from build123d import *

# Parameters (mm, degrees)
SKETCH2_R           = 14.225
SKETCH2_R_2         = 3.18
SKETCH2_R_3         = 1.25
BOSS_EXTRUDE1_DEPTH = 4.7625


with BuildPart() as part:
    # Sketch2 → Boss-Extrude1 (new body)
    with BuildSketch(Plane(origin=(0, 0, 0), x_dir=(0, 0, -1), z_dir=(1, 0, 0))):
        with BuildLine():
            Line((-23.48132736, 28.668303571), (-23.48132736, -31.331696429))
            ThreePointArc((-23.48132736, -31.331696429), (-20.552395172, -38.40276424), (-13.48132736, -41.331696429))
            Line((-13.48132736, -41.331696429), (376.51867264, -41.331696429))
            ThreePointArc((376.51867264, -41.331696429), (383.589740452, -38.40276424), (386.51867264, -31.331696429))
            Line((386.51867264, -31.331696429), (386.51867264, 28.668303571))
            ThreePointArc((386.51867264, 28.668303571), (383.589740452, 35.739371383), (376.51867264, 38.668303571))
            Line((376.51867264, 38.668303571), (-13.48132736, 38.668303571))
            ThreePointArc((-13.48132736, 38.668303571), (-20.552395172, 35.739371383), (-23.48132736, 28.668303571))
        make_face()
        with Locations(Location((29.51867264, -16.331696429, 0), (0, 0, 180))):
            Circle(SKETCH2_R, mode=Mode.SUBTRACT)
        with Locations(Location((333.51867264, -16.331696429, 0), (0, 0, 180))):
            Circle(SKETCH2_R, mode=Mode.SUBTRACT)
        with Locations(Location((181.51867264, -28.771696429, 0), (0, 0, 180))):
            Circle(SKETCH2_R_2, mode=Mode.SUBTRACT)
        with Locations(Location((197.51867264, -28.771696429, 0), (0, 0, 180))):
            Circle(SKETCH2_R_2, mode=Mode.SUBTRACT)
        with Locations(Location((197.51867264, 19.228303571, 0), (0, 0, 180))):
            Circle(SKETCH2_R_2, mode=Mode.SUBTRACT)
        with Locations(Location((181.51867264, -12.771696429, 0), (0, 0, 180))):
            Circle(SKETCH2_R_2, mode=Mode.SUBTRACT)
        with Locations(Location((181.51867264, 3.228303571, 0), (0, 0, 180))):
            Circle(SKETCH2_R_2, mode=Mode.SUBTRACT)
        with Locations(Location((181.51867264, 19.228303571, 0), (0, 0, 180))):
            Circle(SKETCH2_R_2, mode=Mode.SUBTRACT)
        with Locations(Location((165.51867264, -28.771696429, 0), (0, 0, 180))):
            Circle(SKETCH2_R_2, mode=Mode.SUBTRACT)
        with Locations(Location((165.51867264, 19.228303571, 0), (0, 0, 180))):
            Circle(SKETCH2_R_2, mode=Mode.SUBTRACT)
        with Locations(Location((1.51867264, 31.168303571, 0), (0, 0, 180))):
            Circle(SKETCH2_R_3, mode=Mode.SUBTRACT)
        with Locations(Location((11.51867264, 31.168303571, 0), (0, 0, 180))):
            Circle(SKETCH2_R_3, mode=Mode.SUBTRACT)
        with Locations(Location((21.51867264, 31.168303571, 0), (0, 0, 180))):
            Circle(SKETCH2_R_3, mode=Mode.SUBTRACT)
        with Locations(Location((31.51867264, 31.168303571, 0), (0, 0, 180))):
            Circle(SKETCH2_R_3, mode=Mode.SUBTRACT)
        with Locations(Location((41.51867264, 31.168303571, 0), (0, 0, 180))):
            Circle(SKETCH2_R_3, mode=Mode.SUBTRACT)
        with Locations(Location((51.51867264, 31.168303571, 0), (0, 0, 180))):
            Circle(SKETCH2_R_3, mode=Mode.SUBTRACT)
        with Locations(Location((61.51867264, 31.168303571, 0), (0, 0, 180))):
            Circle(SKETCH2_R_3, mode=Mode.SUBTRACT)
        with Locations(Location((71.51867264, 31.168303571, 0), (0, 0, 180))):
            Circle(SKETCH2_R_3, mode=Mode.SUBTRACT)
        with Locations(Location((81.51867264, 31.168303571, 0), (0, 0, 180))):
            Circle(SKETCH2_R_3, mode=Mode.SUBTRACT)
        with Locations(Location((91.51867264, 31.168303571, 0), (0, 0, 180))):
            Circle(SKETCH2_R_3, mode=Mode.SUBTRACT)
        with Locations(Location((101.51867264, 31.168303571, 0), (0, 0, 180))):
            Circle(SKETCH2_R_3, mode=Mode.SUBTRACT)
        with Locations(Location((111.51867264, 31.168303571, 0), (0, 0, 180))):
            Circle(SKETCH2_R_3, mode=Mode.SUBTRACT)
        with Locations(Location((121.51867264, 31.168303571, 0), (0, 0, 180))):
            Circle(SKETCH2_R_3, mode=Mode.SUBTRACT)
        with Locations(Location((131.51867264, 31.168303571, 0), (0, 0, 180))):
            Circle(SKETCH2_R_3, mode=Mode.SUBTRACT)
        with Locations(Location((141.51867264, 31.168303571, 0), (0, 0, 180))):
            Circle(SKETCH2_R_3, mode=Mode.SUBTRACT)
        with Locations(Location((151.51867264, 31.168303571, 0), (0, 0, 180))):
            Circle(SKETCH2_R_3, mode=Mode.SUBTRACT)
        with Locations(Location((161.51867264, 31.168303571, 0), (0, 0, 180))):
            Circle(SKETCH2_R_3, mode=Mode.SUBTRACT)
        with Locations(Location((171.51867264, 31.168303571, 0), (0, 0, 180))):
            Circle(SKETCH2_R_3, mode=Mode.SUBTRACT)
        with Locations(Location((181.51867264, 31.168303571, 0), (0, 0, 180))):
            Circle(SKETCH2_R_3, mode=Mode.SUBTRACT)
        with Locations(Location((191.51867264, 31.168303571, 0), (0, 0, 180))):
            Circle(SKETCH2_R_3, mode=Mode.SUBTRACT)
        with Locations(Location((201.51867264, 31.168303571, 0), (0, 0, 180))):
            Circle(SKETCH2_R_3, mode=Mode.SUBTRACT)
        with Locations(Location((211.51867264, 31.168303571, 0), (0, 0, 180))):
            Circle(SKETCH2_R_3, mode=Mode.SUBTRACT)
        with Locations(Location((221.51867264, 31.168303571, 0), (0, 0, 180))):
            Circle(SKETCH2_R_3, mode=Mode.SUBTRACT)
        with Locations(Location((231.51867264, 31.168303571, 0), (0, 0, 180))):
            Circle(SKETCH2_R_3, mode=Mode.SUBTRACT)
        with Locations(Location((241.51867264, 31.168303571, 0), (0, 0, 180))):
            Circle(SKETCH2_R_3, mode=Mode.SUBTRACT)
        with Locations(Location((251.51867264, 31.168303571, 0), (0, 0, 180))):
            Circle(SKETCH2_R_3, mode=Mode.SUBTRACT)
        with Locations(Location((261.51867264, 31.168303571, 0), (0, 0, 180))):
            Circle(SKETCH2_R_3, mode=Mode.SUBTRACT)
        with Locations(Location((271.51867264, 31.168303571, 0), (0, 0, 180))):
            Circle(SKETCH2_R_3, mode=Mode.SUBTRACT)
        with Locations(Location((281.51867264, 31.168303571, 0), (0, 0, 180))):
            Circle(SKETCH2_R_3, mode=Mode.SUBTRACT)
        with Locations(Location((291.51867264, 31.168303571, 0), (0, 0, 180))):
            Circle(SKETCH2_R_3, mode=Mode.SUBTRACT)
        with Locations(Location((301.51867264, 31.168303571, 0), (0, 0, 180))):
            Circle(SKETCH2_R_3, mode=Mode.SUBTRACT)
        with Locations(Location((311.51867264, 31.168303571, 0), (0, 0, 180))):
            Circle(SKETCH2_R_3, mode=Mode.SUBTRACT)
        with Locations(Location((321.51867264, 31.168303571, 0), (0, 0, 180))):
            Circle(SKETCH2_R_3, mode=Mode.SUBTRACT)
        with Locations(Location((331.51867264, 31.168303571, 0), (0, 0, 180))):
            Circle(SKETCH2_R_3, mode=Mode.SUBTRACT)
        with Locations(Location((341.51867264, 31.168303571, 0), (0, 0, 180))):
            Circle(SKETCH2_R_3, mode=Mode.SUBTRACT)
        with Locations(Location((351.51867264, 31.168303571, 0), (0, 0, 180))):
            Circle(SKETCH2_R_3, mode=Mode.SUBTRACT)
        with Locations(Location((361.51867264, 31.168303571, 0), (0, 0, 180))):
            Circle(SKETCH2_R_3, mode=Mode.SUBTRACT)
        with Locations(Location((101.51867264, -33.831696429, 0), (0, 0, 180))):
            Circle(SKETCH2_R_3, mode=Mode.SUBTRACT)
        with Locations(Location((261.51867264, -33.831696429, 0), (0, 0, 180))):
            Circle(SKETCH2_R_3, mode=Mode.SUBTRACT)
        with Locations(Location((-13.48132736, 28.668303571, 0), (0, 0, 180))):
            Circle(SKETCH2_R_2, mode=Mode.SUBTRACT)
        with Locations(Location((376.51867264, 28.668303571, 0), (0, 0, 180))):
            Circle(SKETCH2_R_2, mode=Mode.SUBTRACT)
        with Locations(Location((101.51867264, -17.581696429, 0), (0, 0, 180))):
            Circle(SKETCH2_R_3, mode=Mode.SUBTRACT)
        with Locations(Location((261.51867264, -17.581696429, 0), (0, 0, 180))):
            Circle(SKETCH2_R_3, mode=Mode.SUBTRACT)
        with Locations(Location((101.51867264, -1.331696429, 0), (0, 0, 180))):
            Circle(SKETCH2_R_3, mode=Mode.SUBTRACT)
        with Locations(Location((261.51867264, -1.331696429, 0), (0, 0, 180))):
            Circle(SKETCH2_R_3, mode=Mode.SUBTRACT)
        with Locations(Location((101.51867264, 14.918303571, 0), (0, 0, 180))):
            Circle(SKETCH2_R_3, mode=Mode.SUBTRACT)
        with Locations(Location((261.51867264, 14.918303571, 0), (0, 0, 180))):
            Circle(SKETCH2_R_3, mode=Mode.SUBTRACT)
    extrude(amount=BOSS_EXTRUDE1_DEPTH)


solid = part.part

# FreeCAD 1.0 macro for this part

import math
import FreeCAD as App
import Part
import Sketcher
Q = App.Units.Quantity

doc = App.newDocument("Part")
body = doc.addObject("PartDesign::Body", "Body")

# Sketch on YZ plane
sketch1 = body.newObject("Sketcher::SketchObject", "Sketch")
sketch1.AttachmentSupport = (doc.getObject("YZ_Plane"), [""])
sketch1.MapMode = "FlatFace"
sketch1.addGeometry([
    Part.LineSegment(App.Vector(28.7, 23.5, 0), App.Vector(-31.3, 23.5, 0)),  # 0
    Part.ArcOfCircle(Part.Circle(App.Vector(-31.3, 13.5, 0), App.Vector(0, 0, 1), 10), math.radians(90), math.radians(180)),  # 1
    Part.LineSegment(App.Vector(-41.3, 13.5, 0), App.Vector(-41.3, -376.5, 0)),  # 2
    Part.ArcOfCircle(Part.Circle(App.Vector(-31.3, -376.5, 0), App.Vector(0, 0, 1), 10), math.radians(-180), math.radians(-90)),  # 3
    Part.LineSegment(App.Vector(-31.3, -386.5, 0), App.Vector(28.7, -386.5, 0)),  # 4
    Part.ArcOfCircle(Part.Circle(App.Vector(28.7, -376.5, 0), App.Vector(0, 0, 1), 10), math.radians(-90), math.radians(0)),  # 5
    Part.LineSegment(App.Vector(38.7, -376.5, 0), App.Vector(38.7, 13.5, 0)),  # 6
    Part.ArcOfCircle(Part.Circle(App.Vector(28.7, 13.5, 0), App.Vector(0, 0, 1), 10), math.radians(0), math.radians(90)),  # 7
    Part.Circle(App.Vector(-33.8, -101.5, 0), App.Vector(0, 0, 1), 1.2),  # 8
    Part.Circle(App.Vector(-28.8, -165.5, 0), App.Vector(0, 0, 1), 3.2),  # 9
    Part.Circle(App.Vector(-16.3, -29.5, 0), App.Vector(0, 0, 1), 14.2),  # 10
    Part.Circle(App.Vector(-17.6, -101.5, 0), App.Vector(0, 0, 1), 1.2),  # 11
    Part.Circle(App.Vector(-28.8, -181.5, 0), App.Vector(0, 0, 1), 3.2),  # 12
    Part.Circle(App.Vector(-28.8, -197.5, 0), App.Vector(0, 0, 1), 3.2),  # 13
    Part.Circle(App.Vector(-33.8, -261.5, 0), App.Vector(0, 0, 1), 1.2),  # 14
    Part.Circle(App.Vector(-12.8, -181.5, 0), App.Vector(0, 0, 1), 3.2),  # 15
    Part.Circle(App.Vector(-17.6, -261.5, 0), App.Vector(0, 0, 1), 1.2),  # 16
    Part.Circle(App.Vector(-16.3, -333.5, 0), App.Vector(0, 0, 1), 14.2),  # 17
    Part.Circle(App.Vector(-1.3, -101.5, 0), App.Vector(0, 0, 1), 1.2),  # 18
    Part.Circle(App.Vector(14.9, -101.5, 0), App.Vector(0, 0, 1), 1.2),  # 19
    Part.Circle(App.Vector(28.7, 13.5, 0), App.Vector(0, 0, 1), 3.2),  # 20
    Part.Circle(App.Vector(31.2, -1.5, 0), App.Vector(0, 0, 1), 1.2),  # 21
    Part.Circle(App.Vector(31.2, -11.5, 0), App.Vector(0, 0, 1), 1.2),  # 22
    Part.Circle(App.Vector(31.2, -21.5, 0), App.Vector(0, 0, 1), 1.2),  # 23
    Part.Circle(App.Vector(31.2, -31.5, 0), App.Vector(0, 0, 1), 1.2),  # 24
    Part.Circle(App.Vector(31.2, -41.5, 0), App.Vector(0, 0, 1), 1.2),  # 25
    Part.Circle(App.Vector(31.2, -51.5, 0), App.Vector(0, 0, 1), 1.2),  # 26
    Part.Circle(App.Vector(31.2, -61.5, 0), App.Vector(0, 0, 1), 1.2),  # 27
    Part.Circle(App.Vector(31.2, -71.5, 0), App.Vector(0, 0, 1), 1.2),  # 28
    Part.Circle(App.Vector(31.2, -81.5, 0), App.Vector(0, 0, 1), 1.2),  # 29
    Part.Circle(App.Vector(19.2, -165.5, 0), App.Vector(0, 0, 1), 3.2),  # 30
    Part.Circle(App.Vector(31.2, -91.5, 0), App.Vector(0, 0, 1), 1.2),  # 31
    Part.Circle(App.Vector(31.2, -101.5, 0), App.Vector(0, 0, 1), 1.2),  # 32
    Part.Circle(App.Vector(31.2, -111.5, 0), App.Vector(0, 0, 1), 1.2),  # 33
    Part.Circle(App.Vector(31.2, -121.5, 0), App.Vector(0, 0, 1), 1.2),  # 34
    Part.Circle(App.Vector(31.2, -131.5, 0), App.Vector(0, 0, 1), 1.2),  # 35
    Part.Circle(App.Vector(31.2, -141.5, 0), App.Vector(0, 0, 1), 1.2),  # 36
    Part.Circle(App.Vector(31.2, -151.5, 0), App.Vector(0, 0, 1), 1.2),  # 37
    Part.Circle(App.Vector(31.2, -161.5, 0), App.Vector(0, 0, 1), 1.2),  # 38
    Part.Circle(App.Vector(31.2, -171.5, 0), App.Vector(0, 0, 1), 1.2),  # 39
    Part.Circle(App.Vector(3.2, -181.5, 0), App.Vector(0, 0, 1), 3.2),  # 40
    Part.Circle(App.Vector(-1.3, -261.5, 0), App.Vector(0, 0, 1), 1.2),  # 41
    Part.Circle(App.Vector(14.9, -261.5, 0), App.Vector(0, 0, 1), 1.2),  # 42
    Part.Circle(App.Vector(19.2, -181.5, 0), App.Vector(0, 0, 1), 3.2),  # 43
    Part.Circle(App.Vector(19.2, -197.5, 0), App.Vector(0, 0, 1), 3.2),  # 44
    Part.Circle(App.Vector(31.2, -181.5, 0), App.Vector(0, 0, 1), 1.2),  # 45
    Part.Circle(App.Vector(31.2, -191.5, 0), App.Vector(0, 0, 1), 1.2),  # 46
    Part.Circle(App.Vector(31.2, -201.5, 0), App.Vector(0, 0, 1), 1.2),  # 47
    Part.Circle(App.Vector(31.2, -211.5, 0), App.Vector(0, 0, 1), 1.2),  # 48
    Part.Circle(App.Vector(31.2, -221.5, 0), App.Vector(0, 0, 1), 1.2),  # 49
    Part.Circle(App.Vector(31.2, -231.5, 0), App.Vector(0, 0, 1), 1.2),  # 50
    Part.Circle(App.Vector(31.2, -241.5, 0), App.Vector(0, 0, 1), 1.2),  # 51
    Part.Circle(App.Vector(31.2, -251.5, 0), App.Vector(0, 0, 1), 1.2),  # 52
    Part.Circle(App.Vector(31.2, -261.5, 0), App.Vector(0, 0, 1), 1.2),  # 53
    Part.Circle(App.Vector(31.2, -271.5, 0), App.Vector(0, 0, 1), 1.2),  # 54
    Part.Circle(App.Vector(31.2, -281.5, 0), App.Vector(0, 0, 1), 1.2),  # 55
    Part.Circle(App.Vector(31.2, -291.5, 0), App.Vector(0, 0, 1), 1.2),  # 56
    Part.Circle(App.Vector(31.2, -301.5, 0), App.Vector(0, 0, 1), 1.2),  # 57
    Part.Circle(App.Vector(31.2, -311.5, 0), App.Vector(0, 0, 1), 1.2),  # 58
    Part.Circle(App.Vector(31.2, -321.5, 0), App.Vector(0, 0, 1), 1.2),  # 59
    Part.Circle(App.Vector(31.2, -331.5, 0), App.Vector(0, 0, 1), 1.2),  # 60
    Part.Circle(App.Vector(31.2, -341.5, 0), App.Vector(0, 0, 1), 1.2),  # 61
    Part.Circle(App.Vector(31.2, -351.5, 0), App.Vector(0, 0, 1), 1.2),  # 62
    Part.Circle(App.Vector(28.7, -376.5, 0), App.Vector(0, 0, 1), 3.2),  # 63
    Part.Circle(App.Vector(31.2, -361.5, 0), App.Vector(0, 0, 1), 1.2),  # 64
], False)
sketch1.addConstraint([
    Sketcher.Constraint("Tangent", 0, 2, 1, 1),
    Sketcher.Constraint("Tangent", 1, 2, 2, 1),
    Sketcher.Constraint("Tangent", 2, 2, 3, 1),
    Sketcher.Constraint("Tangent", 3, 2, 4, 1),
    Sketcher.Constraint("Tangent", 4, 2, 5, 1),
    Sketcher.Constraint("Tangent", 5, 2, 6, 1),
    Sketcher.Constraint("Tangent", 6, 2, 7, 1),
    Sketcher.Constraint("Tangent", 7, 2, 0, 1),
    Sketcher.Constraint("Horizontal", 0),
    Sketcher.Constraint("Vertical", 2),
    Sketcher.Constraint("Horizontal", 4),
    Sketcher.Constraint("Vertical", 6),
    Sketcher.Constraint("Coincident", 20, 3, 7, 3),
    Sketcher.Constraint("Coincident", 63, 3, 5, 3),
    Sketcher.Constraint("Equal", 1, 3),
    Sketcher.Constraint("Equal", 3, 5),
    Sketcher.Constraint("Equal", 5, 7),
    Sketcher.Constraint("Equal", 8, 11),
    Sketcher.Constraint("Equal", 9, 12),
    Sketcher.Constraint("Equal", 12, 13),
    Sketcher.Constraint("Equal", 11, 14),
    Sketcher.Constraint("Equal", 13, 15),
    Sketcher.Constraint("Equal", 14, 16),
    Sketcher.Constraint("Equal", 10, 17),
    Sketcher.Constraint("Equal", 16, 18),
    Sketcher.Constraint("Equal", 18, 19),
    Sketcher.Constraint("Equal", 15, 20),
    Sketcher.Constraint("Equal", 19, 21),
    Sketcher.Constraint("Equal", 21, 22),
    Sketcher.Constraint("Equal", 22, 23),
    Sketcher.Constraint("Equal", 23, 24),
    Sketcher.Constraint("Equal", 24, 25),
    Sketcher.Constraint("Equal", 25, 26),
    Sketcher.Constraint("Equal", 26, 27),
    Sketcher.Constraint("Equal", 27, 28),
    Sketcher.Constraint("Equal", 28, 29),
    Sketcher.Constraint("Equal", 20, 30),
    Sketcher.Constraint("Equal", 29, 31),
    Sketcher.Constraint("Equal", 31, 32),
    Sketcher.Constraint("Equal", 32, 33),
    Sketcher.Constraint("Equal", 33, 34),
    Sketcher.Constraint("Equal", 34, 35),
    Sketcher.Constraint("Equal", 35, 36),
    Sketcher.Constraint("Equal", 36, 37),
    Sketcher.Constraint("Equal", 37, 38),
    Sketcher.Constraint("Equal", 38, 39),
    Sketcher.Constraint("Equal", 30, 40),
    Sketcher.Constraint("Equal", 39, 41),
    Sketcher.Constraint("Equal", 41, 42),
    Sketcher.Constraint("Equal", 40, 43),
    Sketcher.Constraint("Equal", 43, 44),
    Sketcher.Constraint("Equal", 42, 45),
    Sketcher.Constraint("Equal", 45, 46),
    Sketcher.Constraint("Equal", 46, 47),
    Sketcher.Constraint("Equal", 47, 48),
    Sketcher.Constraint("Equal", 48, 49),
    Sketcher.Constraint("Equal", 49, 50),
    Sketcher.Constraint("Equal", 50, 51),
    Sketcher.Constraint("Equal", 51, 52),
    Sketcher.Constraint("Equal", 52, 53),
    Sketcher.Constraint("Equal", 53, 54),
    Sketcher.Constraint("Equal", 54, 55),
    Sketcher.Constraint("Equal", 55, 56),
    Sketcher.Constraint("Equal", 56, 57),
    Sketcher.Constraint("Equal", 57, 58),
    Sketcher.Constraint("Equal", 58, 59),
    Sketcher.Constraint("Equal", 59, 60),
    Sketcher.Constraint("Equal", 60, 61),
    Sketcher.Constraint("Equal", 61, 62),
    Sketcher.Constraint("Equal", 44, 63),
    Sketcher.Constraint("Equal", 62, 64),
    Sketcher.Constraint("Horizontal", 8, 3, 11, 3),
    Sketcher.Constraint("Horizontal", 12, 3, 15, 3),
    Sketcher.Constraint("Horizontal", 14, 3, 16, 3),
    Sketcher.Constraint("Horizontal", 11, 3, 18, 3),
    Sketcher.Constraint("Horizontal", 18, 3, 19, 3),
    Sketcher.Constraint("Horizontal", 9, 3, 30, 3),
    Sketcher.Constraint("Horizontal", 19, 3, 32, 3),
    Sketcher.Constraint("Horizontal", 15, 3, 40, 3),
    Sketcher.Constraint("Horizontal", 16, 3, 41, 3),
    Sketcher.Constraint("Horizontal", 41, 3, 42, 3),
    Sketcher.Constraint("Horizontal", 40, 3, 43, 3),
    Sketcher.Constraint("Horizontal", 13, 3, 44, 3),
    Sketcher.Constraint("Horizontal", 43, 3, 45, 3),
    Sketcher.Constraint("Horizontal", 42, 3, 53, 3),
    Sketcher.Constraint("Vertical", 9, 3, 12, 3),
    Sketcher.Constraint("Vertical", 12, 3, 13, 3),
    Sketcher.Constraint("Vertical", 8, 3, 14, 3),
    Sketcher.Constraint("Vertical", 11, 3, 16, 3),
    Sketcher.Constraint("Vertical", 10, 3, 17, 3),
    Sketcher.Constraint("Vertical", 21, 3, 22, 3),
    Sketcher.Constraint("Vertical", 22, 3, 23, 3),
    Sketcher.Constraint("Vertical", 23, 3, 24, 3),
    Sketcher.Constraint("Vertical", 24, 3, 25, 3),
    Sketcher.Constraint("Vertical", 25, 3, 26, 3),
    Sketcher.Constraint("Vertical", 26, 3, 27, 3),
    Sketcher.Constraint("Vertical", 27, 3, 28, 3),
    Sketcher.Constraint("Vertical", 28, 3, 29, 3),
    Sketcher.Constraint("Vertical", 29, 3, 31, 3),
    Sketcher.Constraint("Vertical", 31, 3, 32, 3),
    Sketcher.Constraint("Vertical", 32, 3, 33, 3),
    Sketcher.Constraint("Vertical", 33, 3, 34, 3),
    Sketcher.Constraint("Vertical", 34, 3, 35, 3),
    Sketcher.Constraint("Vertical", 35, 3, 36, 3),
    Sketcher.Constraint("Vertical", 36, 3, 37, 3),
    Sketcher.Constraint("Vertical", 37, 3, 38, 3),
    Sketcher.Constraint("Vertical", 38, 3, 39, 3),
    Sketcher.Constraint("Vertical", 18, 3, 41, 3),
    Sketcher.Constraint("Vertical", 19, 3, 42, 3),
    Sketcher.Constraint("Vertical", 30, 3, 43, 3),
    Sketcher.Constraint("Vertical", 43, 3, 44, 3),
    Sketcher.Constraint("Vertical", 39, 3, 45, 3),
    Sketcher.Constraint("Vertical", 45, 3, 46, 3),
    Sketcher.Constraint("Vertical", 46, 3, 47, 3),
    Sketcher.Constraint("Vertical", 47, 3, 48, 3),
    Sketcher.Constraint("Vertical", 48, 3, 49, 3),
    Sketcher.Constraint("Vertical", 49, 3, 50, 3),
    Sketcher.Constraint("Vertical", 50, 3, 51, 3),
    Sketcher.Constraint("Vertical", 51, 3, 52, 3),
    Sketcher.Constraint("Vertical", 52, 3, 53, 3),
    Sketcher.Constraint("Vertical", 53, 3, 54, 3),
    Sketcher.Constraint("Vertical", 54, 3, 55, 3),
    Sketcher.Constraint("Vertical", 55, 3, 56, 3),
    Sketcher.Constraint("Vertical", 56, 3, 57, 3),
    Sketcher.Constraint("Vertical", 57, 3, 58, 3),
    Sketcher.Constraint("Vertical", 58, 3, 59, 3),
    Sketcher.Constraint("Vertical", 59, 3, 60, 3),
    Sketcher.Constraint("Vertical", 60, 3, 61, 3),
    Sketcher.Constraint("Vertical", 61, 3, 62, 3),
    Sketcher.Constraint("Vertical", 62, 3, 64, 3),
    Sketcher.Constraint("Radius", 1, Q("10 mm")),
    Sketcher.Constraint("Diameter", 8, Q("2.5 mm")),
    Sketcher.Constraint("Diameter", 9, Q("6.36 mm")),
    Sketcher.Constraint("Diameter", 10, Q("28.45 mm")),
    Sketcher.Constraint("DistanceX", 0, 2, 0, 1, Q("60 mm")),
    Sketcher.Constraint("DistanceY", 2, 2, 2, 1, Q("390 mm")),
    Sketcher.Constraint("DistanceX", 1, 3, -1, 1, Q("31.331696 mm")),
    Sketcher.Constraint("DistanceY", -1, 1, 1, 3, Q("13.481327 mm")),
    Sketcher.Constraint("DistanceX", 8, 3, -1, 1, Q("33.831696 mm")),
    Sketcher.Constraint("DistanceY", 8, 3, -1, 1, Q("101.518673 mm")),
    Sketcher.Constraint("DistanceX", 9, 3, -1, 1, Q("28.771696 mm")),
    Sketcher.Constraint("DistanceY", 9, 3, -1, 1, Q("165.518673 mm")),
    Sketcher.Constraint("DistanceX", 10, 3, -1, 1, Q("16.331696 mm")),
    Sketcher.Constraint("DistanceY", 10, 3, -1, 1, Q("29.518673 mm")),
    Sketcher.Constraint("DistanceX", 11, 3, -1, 1, Q("17.581696 mm")),
    Sketcher.Constraint("DistanceY", 12, 3, -1, 1, Q("181.518673 mm")),
    Sketcher.Constraint("DistanceY", 13, 3, -1, 1, Q("197.518673 mm")),
    Sketcher.Constraint("DistanceY", 14, 3, -1, 1, Q("261.518673 mm")),
    Sketcher.Constraint("DistanceX", 15, 3, -1, 1, Q("12.771696 mm")),
    Sketcher.Constraint("DistanceY", 17, 3, -1, 1, Q("333.518673 mm")),
    Sketcher.Constraint("DistanceX", 18, 3, -1, 1, Q("1.331696 mm")),
    Sketcher.Constraint("DistanceX", -1, 1, 19, 3, Q("14.918304 mm")),
    Sketcher.Constraint("DistanceX", -1, 1, 21, 3, Q("31.168304 mm")),
    Sketcher.Constraint("DistanceY", 21, 3, -1, 1, Q("1.518673 mm")),
    Sketcher.Constraint("DistanceY", 22, 3, -1, 1, Q("11.518673 mm")),
    Sketcher.Constraint("DistanceY", 23, 3, -1, 1, Q("21.518673 mm")),
    Sketcher.Constraint("DistanceY", 24, 3, -1, 1, Q("31.518673 mm")),
    Sketcher.Constraint("DistanceY", 25, 3, -1, 1, Q("41.518673 mm")),
    Sketcher.Constraint("DistanceY", 26, 3, -1, 1, Q("51.518673 mm")),
    Sketcher.Constraint("DistanceY", 27, 3, -1, 1, Q("61.518673 mm")),
    Sketcher.Constraint("DistanceY", 28, 3, -1, 1, Q("71.518673 mm")),
    Sketcher.Constraint("DistanceY", 29, 3, -1, 1, Q("81.518673 mm")),
    Sketcher.Constraint("DistanceX", -1, 1, 30, 3, Q("19.228304 mm")),
    Sketcher.Constraint("DistanceY", 31, 3, -1, 1, Q("91.518673 mm")),
    Sketcher.Constraint("DistanceY", 33, 3, -1, 1, Q("111.518673 mm")),
    Sketcher.Constraint("DistanceY", 34, 3, -1, 1, Q("121.518673 mm")),
    Sketcher.Constraint("DistanceY", 35, 3, -1, 1, Q("131.518673 mm")),
    Sketcher.Constraint("DistanceY", 36, 3, -1, 1, Q("141.518673 mm")),
    Sketcher.Constraint("DistanceY", 37, 3, -1, 1, Q("151.518673 mm")),
    Sketcher.Constraint("DistanceY", 38, 3, -1, 1, Q("161.518673 mm")),
    Sketcher.Constraint("DistanceY", 39, 3, -1, 1, Q("171.518673 mm")),
    Sketcher.Constraint("DistanceX", -1, 1, 40, 3, Q("3.228304 mm")),
    Sketcher.Constraint("DistanceY", 46, 3, -1, 1, Q("191.518673 mm")),
    Sketcher.Constraint("DistanceY", 47, 3, -1, 1, Q("201.518673 mm")),
    Sketcher.Constraint("DistanceY", 48, 3, -1, 1, Q("211.518673 mm")),
    Sketcher.Constraint("DistanceY", 49, 3, -1, 1, Q("221.518673 mm")),
    Sketcher.Constraint("DistanceY", 50, 3, -1, 1, Q("231.518673 mm")),
    Sketcher.Constraint("DistanceY", 51, 3, -1, 1, Q("241.518673 mm")),
    Sketcher.Constraint("DistanceY", 52, 3, -1, 1, Q("251.518673 mm")),
    Sketcher.Constraint("DistanceY", 54, 3, -1, 1, Q("271.518673 mm")),
    Sketcher.Constraint("DistanceY", 55, 3, -1, 1, Q("281.518673 mm")),
    Sketcher.Constraint("DistanceY", 56, 3, -1, 1, Q("291.518673 mm")),
    Sketcher.Constraint("DistanceY", 57, 3, -1, 1, Q("301.518673 mm")),
    Sketcher.Constraint("DistanceY", 58, 3, -1, 1, Q("311.518673 mm")),
    Sketcher.Constraint("DistanceY", 59, 3, -1, 1, Q("321.518673 mm")),
    Sketcher.Constraint("DistanceY", 60, 3, -1, 1, Q("331.518673 mm")),
    Sketcher.Constraint("DistanceY", 61, 3, -1, 1, Q("341.518673 mm")),
    Sketcher.Constraint("DistanceY", 62, 3, -1, 1, Q("351.518673 mm")),
    Sketcher.Constraint("DistanceY", 64, 3, -1, 1, Q("361.518673 mm")),
])
pad1 = body.newObject("PartDesign::Pad", "Pad")
pad1.Profile = sketch1
pad1.Length = 4.7625

doc.recompute()
